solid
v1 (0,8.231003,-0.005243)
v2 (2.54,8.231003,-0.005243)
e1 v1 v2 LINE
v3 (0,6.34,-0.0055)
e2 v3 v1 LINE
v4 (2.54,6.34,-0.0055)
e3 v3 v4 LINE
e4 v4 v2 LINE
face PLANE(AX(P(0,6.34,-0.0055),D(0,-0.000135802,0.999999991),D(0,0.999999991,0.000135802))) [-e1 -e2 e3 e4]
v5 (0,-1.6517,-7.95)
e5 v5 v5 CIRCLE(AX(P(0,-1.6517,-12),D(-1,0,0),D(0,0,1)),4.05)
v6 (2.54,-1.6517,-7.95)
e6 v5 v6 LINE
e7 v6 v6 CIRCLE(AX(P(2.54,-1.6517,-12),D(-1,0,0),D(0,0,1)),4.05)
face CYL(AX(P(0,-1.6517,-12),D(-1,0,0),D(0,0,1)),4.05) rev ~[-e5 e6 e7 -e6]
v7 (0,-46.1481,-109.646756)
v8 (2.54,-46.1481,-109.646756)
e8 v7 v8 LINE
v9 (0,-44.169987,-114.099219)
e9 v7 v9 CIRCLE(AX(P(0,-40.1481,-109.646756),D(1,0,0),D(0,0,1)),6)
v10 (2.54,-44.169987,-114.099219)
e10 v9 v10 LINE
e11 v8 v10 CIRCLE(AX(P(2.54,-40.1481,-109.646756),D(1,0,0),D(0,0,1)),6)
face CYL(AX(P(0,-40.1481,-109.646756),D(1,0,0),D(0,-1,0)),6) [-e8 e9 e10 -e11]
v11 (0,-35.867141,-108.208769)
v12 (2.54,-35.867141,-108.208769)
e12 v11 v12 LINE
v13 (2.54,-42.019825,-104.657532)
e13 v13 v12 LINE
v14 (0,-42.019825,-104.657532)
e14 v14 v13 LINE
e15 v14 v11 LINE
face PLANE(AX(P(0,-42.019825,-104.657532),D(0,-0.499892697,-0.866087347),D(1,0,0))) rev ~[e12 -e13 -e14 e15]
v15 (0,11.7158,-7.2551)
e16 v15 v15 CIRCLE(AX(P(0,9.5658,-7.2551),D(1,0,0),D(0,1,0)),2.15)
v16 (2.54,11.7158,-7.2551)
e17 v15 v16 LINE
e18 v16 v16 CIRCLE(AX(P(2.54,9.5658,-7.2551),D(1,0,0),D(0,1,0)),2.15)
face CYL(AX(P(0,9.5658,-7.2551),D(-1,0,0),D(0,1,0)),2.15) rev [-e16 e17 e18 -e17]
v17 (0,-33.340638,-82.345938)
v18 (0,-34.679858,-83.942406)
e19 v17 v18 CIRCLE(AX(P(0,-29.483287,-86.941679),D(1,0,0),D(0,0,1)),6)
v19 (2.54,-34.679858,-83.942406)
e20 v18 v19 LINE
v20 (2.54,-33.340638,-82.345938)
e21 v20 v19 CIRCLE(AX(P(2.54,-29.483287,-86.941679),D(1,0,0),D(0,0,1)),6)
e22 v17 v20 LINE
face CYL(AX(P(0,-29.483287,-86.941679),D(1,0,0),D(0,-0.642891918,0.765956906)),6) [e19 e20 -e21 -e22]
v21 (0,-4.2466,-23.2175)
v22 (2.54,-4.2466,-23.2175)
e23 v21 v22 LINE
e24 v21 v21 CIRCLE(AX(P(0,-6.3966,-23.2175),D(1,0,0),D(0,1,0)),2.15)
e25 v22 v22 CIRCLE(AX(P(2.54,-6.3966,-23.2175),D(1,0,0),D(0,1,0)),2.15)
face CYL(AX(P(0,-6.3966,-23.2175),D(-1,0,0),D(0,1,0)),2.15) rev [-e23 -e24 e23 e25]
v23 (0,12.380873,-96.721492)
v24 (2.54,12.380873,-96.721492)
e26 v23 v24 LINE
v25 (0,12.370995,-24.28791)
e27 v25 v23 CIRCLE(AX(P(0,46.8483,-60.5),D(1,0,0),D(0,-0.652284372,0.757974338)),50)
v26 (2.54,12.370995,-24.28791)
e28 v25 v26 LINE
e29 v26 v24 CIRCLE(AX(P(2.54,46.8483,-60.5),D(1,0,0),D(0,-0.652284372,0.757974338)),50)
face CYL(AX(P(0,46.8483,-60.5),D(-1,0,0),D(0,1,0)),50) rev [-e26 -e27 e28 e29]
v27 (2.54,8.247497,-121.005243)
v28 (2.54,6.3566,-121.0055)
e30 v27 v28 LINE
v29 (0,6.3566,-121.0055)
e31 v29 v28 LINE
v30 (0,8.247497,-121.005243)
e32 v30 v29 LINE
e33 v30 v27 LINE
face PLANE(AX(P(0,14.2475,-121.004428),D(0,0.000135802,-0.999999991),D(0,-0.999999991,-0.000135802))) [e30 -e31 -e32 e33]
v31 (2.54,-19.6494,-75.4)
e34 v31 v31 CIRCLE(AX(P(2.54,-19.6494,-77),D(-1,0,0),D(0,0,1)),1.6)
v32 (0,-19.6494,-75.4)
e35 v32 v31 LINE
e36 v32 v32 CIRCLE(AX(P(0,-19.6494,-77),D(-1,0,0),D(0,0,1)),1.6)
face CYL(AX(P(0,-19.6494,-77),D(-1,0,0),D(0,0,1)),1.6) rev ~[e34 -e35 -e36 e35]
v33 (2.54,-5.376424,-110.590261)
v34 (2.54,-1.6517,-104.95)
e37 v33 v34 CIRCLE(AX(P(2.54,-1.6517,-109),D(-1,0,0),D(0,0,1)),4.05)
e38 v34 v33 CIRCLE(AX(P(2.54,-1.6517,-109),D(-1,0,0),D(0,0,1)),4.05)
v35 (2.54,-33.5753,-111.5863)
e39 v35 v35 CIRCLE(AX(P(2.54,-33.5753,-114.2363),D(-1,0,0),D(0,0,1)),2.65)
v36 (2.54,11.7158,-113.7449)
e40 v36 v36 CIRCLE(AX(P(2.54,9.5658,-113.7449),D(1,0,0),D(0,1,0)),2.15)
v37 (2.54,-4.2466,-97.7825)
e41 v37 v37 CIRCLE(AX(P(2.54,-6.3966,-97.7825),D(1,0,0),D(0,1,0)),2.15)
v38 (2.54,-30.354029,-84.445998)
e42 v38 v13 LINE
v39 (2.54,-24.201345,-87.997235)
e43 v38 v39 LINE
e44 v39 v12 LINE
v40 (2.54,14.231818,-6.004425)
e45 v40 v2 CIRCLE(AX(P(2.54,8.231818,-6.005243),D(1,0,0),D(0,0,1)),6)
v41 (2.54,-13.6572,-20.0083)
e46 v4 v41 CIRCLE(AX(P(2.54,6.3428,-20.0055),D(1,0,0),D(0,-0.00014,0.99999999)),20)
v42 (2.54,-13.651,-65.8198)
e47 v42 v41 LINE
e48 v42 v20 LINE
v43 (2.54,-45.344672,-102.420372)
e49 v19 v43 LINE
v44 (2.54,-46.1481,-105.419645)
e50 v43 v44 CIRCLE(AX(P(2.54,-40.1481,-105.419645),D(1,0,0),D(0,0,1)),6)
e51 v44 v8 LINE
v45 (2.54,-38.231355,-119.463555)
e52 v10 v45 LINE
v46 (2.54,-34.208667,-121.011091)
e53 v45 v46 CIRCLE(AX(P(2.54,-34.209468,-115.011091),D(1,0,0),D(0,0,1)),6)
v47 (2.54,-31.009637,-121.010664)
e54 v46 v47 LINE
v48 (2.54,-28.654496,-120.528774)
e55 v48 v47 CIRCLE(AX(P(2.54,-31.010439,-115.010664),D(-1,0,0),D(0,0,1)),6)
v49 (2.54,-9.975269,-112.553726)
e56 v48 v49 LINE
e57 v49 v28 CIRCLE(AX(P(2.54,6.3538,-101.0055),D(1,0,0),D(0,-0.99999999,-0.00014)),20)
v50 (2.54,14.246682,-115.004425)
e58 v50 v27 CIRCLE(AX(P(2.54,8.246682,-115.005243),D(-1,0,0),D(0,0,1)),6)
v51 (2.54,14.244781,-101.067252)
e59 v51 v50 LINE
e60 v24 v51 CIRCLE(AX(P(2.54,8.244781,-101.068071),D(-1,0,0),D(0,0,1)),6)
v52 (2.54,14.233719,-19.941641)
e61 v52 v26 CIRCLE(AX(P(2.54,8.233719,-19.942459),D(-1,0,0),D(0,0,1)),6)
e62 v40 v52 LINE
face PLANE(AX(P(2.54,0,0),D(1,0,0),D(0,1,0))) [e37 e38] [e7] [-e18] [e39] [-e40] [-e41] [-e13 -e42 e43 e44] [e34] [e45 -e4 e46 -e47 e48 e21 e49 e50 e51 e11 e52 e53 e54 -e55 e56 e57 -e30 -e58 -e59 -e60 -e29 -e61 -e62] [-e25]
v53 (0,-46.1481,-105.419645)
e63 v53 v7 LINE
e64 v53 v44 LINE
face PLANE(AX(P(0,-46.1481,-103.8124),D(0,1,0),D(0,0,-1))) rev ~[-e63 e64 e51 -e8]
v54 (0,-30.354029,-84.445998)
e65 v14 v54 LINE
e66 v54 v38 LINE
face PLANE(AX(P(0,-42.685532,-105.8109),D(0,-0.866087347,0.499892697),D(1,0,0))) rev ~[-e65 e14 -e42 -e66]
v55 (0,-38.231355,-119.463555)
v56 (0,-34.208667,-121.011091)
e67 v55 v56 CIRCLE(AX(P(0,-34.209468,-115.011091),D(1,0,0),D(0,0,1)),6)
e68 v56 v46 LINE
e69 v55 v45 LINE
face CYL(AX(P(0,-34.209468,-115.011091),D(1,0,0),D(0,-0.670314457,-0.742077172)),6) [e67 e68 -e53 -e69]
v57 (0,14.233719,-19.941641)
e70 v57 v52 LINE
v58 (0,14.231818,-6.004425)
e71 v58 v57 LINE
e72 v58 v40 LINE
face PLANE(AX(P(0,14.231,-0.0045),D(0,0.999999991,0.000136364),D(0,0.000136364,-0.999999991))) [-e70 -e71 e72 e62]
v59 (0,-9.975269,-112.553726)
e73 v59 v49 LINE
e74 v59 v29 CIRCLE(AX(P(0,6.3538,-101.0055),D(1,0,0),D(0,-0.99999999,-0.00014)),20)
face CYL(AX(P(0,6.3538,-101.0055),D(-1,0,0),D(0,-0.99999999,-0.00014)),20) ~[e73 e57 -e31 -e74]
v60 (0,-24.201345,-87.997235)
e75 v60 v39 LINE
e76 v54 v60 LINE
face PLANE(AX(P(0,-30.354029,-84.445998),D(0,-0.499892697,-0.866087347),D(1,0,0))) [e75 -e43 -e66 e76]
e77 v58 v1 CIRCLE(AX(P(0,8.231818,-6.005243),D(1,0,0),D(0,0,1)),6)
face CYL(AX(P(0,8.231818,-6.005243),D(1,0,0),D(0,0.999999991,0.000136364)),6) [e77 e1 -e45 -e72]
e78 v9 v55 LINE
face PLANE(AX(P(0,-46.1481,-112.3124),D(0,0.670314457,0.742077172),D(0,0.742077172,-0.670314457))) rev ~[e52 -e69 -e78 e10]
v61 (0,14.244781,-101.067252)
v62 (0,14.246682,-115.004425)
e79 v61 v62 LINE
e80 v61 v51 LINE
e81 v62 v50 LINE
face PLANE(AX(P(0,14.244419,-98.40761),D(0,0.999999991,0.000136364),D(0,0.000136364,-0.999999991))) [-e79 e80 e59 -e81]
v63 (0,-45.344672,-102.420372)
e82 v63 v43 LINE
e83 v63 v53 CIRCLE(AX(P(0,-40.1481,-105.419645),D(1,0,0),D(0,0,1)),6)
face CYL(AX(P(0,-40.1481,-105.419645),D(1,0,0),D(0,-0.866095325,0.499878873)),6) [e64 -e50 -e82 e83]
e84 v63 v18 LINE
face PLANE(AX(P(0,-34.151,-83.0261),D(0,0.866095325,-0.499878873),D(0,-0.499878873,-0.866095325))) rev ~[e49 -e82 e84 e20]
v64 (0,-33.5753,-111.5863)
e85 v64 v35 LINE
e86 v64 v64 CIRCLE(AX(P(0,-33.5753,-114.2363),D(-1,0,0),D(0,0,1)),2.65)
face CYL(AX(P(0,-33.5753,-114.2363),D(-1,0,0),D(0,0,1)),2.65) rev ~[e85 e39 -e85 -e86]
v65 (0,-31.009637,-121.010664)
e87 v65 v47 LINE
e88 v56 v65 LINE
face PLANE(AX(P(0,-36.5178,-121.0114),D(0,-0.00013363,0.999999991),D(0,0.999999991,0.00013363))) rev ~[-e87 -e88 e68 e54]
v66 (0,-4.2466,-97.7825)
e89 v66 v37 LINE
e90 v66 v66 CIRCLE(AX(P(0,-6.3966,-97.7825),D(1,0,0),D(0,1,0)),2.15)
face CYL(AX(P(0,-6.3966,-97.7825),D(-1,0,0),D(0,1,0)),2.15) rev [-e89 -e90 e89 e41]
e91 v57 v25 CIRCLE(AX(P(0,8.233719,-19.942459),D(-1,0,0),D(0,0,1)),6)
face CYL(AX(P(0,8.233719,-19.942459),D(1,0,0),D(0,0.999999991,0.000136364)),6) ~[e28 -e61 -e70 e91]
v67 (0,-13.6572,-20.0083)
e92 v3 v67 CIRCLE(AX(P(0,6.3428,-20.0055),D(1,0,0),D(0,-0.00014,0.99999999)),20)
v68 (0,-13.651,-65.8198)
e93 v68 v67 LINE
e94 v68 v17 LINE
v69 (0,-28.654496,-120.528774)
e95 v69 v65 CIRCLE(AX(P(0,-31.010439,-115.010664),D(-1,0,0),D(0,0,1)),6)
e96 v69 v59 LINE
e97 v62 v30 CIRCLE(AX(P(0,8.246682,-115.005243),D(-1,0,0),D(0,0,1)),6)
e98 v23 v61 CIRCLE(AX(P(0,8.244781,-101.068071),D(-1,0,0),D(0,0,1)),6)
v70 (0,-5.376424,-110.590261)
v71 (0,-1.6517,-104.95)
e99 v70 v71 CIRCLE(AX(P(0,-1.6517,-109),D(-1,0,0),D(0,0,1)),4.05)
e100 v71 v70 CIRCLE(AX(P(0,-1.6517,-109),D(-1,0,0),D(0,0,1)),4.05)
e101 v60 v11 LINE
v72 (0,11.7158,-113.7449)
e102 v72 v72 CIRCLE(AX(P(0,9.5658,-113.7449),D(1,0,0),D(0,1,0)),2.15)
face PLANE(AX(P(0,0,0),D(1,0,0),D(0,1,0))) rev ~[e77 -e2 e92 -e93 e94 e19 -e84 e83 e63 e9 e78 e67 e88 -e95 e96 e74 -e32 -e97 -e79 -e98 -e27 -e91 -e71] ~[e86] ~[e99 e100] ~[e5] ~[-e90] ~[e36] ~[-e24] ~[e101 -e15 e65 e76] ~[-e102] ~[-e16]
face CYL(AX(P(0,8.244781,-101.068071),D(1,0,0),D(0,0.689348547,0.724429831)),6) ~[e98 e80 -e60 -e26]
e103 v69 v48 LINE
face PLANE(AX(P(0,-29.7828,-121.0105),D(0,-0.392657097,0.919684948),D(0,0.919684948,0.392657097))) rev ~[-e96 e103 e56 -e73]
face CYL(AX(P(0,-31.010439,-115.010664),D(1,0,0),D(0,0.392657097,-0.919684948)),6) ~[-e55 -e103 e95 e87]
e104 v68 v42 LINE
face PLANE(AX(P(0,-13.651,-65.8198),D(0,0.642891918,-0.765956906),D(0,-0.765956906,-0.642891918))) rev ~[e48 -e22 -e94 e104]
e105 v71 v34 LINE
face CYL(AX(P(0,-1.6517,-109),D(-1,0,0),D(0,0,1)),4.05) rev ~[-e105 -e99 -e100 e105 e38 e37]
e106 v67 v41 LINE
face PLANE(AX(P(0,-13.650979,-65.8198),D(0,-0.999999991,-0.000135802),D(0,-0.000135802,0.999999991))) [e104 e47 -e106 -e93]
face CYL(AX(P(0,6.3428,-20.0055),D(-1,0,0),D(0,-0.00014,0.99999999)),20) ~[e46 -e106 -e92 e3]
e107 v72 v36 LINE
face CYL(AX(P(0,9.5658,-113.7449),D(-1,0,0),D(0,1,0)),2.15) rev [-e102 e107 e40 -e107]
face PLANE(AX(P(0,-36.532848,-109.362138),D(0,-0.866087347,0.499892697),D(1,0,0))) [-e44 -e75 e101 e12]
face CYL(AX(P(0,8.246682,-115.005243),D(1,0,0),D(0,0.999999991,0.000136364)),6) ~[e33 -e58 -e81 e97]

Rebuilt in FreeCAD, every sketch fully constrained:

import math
import FreeCAD as App
import Part
import Sketcher

V = App.Vector
Q = App.Units.Quantity


def edges_at(feature, points):
    """Names of the edges that pass closest to the given points."""
    edges = feature.Shape.Edges
    near = lambda p: min(range(len(edges)), key=lambda i: edges[i].distToShape(Part.Vertex(*p))[0])
    return sorted({f"Edge{near(p) + 1}" for p in points})


def add_polygon(sketch, points):
    """Adds a closed chain of lines whose ends are joined by coincident constraints."""
    first, n = sketch.GeometryCount, len(points)
    for a, b in zip(points, points[1:] + points[:1]):
        sketch.addGeometry(Part.LineSegment(App.Vector(*a, 0), App.Vector(*b, 0)), False)
    for i in range(n):
        sketch.addConstraint(Sketcher.Constraint("Coincident", first + i, 2, first + (i + 1) % n, 1))

doc = App.newDocument("Part")
body = doc.addObject("PartDesign::Body", "Body")

# Sketch on YZ plane
sketch1 = body.newObject("Sketcher::SketchObject", "Sketch")
sketch1.AttachmentSupport = (doc.getObject("YZ_Plane"), [""])
sketch1.MapMode = "FlatFace"
sketch1.addGeometry([
    Part.LineSegment(V(14.231, -0.004428, 0), V(6.34, -0.0055, 0)),  # 0
    Part.ArcOfCircle(Part.Circle(V(6.3428, -20.0055, 0), V(0, 0, 1), 20), math.radians(90.008021), math.radians(180.008021)),  # 1
    Part.LineSegment(V(-13.6572, -20.0083, 0), V(-13.650979, -65.8198, 0)),  # 2
    Part.LineSegment(V(-13.651, -65.8198, 0), V(-34.151, -83.0261, 0)),  # 3
    Part.LineSegment(V(-34.151, -83.0261, 0), V(-46.1481, -103.8124, 0)),  # 4
    Part.LineSegment(V(-46.1481, -103.8124, 0), V(-46.1481, -112.3124, 0)),  # 5
    Part.LineSegment(V(-46.1481, -112.3124, 0), V(-36.5178, -121.0114, 0)),  # 6
    Part.LineSegment(V(-36.5178, -121.0114, 0), V(-29.7828, -121.0105, 0)),  # 7
    Part.LineSegment(V(-29.7828, -121.0105, 0), V(-9.975269, -112.553726, 0)),  # 8
    Part.ArcOfCircle(Part.Circle(V(6.3538, -101.0055, 0), V(0, 0, 1), 20), math.radians(-144.731328), math.radians(-89.991979)),  # 9
    Part.LineSegment(V(6.3566, -121.0055, 0), V(14.2475, -121.004428, 0)),  # 10
    Part.LineSegment(V(14.2475, -121.0044, 0), V(14.244419, -98.40761, 0)),  # 11
    Part.ArcOfCircle(Part.Circle(V(46.8483, -60.5, 0), V(0, 0, 1), 50), math.radians(130.714056), math.radians(229.30157)),  # 12
    Part.LineSegment(V(14.234081, -22.601283, 0), V(14.231, -0.0045, 0)),  # 13
    Part.Circle(V(9.5658, -113.7449, 0), V(0, 0, 1), 2.15),  # 14
    Part.Circle(V(-1.6517, -12, 0), V(0, 0, 1), 2.65),  # 15
    Part.Circle(V(9.5658, -7.2551, 0), V(0, 0, 1), 2.15),  # 16
    Part.Circle(V(-6.3966, -97.7825, 0), V(0, 0, 1), 2.15),  # 17
    Part.Circle(V(-6.3966, -23.2175, 0), V(0, 0, 1), 2.15),  # 18
    Part.Circle(V(-1.6517, -109, 0), V(0, 0, 1), 2.65),  # 19
], False)
sketch1.addConstraint([
    Sketcher.Constraint("Tangent", 0, 2, 1, 1),
    Sketcher.Constraint("Tangent", 1, 2, 2, 1),
    Sketcher.Constraint("Coincident", 2, 2, 3, 1),
    Sketcher.Constraint("Coincident", 3, 2, 4, 1),
    Sketcher.Constraint("Coincident", 4, 2, 5, 1),
    Sketcher.Constraint("Coincident", 5, 2, 6, 1),
    Sketcher.Constraint("Coincident", 6, 2, 7, 1),
    Sketcher.Constraint("Coincident", 7, 2, 8, 1),
    Sketcher.Constraint("Coincident", 8, 2, 9, 1),
    Sketcher.Constraint("Tangent", 9, 2, 10, 1),
    Sketcher.Constraint("Coincident", 10, 2, 11, 1),
    Sketcher.Constraint("Coincident", 11, 2, 12, 2),
    Sketcher.Constraint("Coincident", 12, 1, 13, 1),
    Sketcher.Constraint("Coincident", 13, 2, 0, 1),
    Sketcher.Constraint("Vertical", 5),
    Sketcher.Constraint("Equal", 1, 9),
    Sketcher.Constraint("Equal", 14, 16),
    Sketcher.Constraint("Equal", 16, 17),
    Sketcher.Constraint("Equal", 17, 18),
    Sketcher.Constraint("Equal", 15, 19),
    Sketcher.Constraint("Perpendicular", 0, 2),
    Sketcher.Constraint("Perpendicular", 2, 7),
    Sketcher.Constraint("Parallel", 7, 10),
    Sketcher.Constraint("Perpendicular", 10, 11),
    Sketcher.Constraint("Parallel", 11, 13),
    Sketcher.Constraint("Vertical", 14, 3, 16, 3),
    Sketcher.Constraint("Vertical", 17, 3, 18, 3),
    Sketcher.Constraint("Vertical", 15, 3, 19, 3),
    Sketcher.Constraint("Equal", 0, 10),
    Sketcher.Constraint("Equal", 11, 13),
    Sketcher.Constraint("Radius", 12, 50.0),
    Sketcher.Constraint("DistanceY", 5, 2, 5, 1, 8.5),
    Sketcher.Constraint("DistanceY", 15, 3, -1, 1, 12.0),
    Sketcher.Constraint("Radius", 1, 20.0),
    Sketcher.Constraint("Diameter", 14, 4.3),
    Sketcher.Constraint("Diameter", 15, 5.3),
    Sketcher.Constraint("DistanceX", 3, 2, 2, 2, 20.5),
    Sketcher.Constraint("Distance", 4, 24.0),
    Sketcher.Constraint("DistanceY", 19, 3, -1, 1, 109.0),
    Sketcher.Constraint("DistanceY", 9, 3, 1, 3, 81.0),
    Sketcher.Constraint("DistanceY", 12, 3, -1, 1, 60.5),
    Sketcher.Constraint("Angle", 8, Q("23.12 deg")),
    Sketcher.Constraint("DistanceX", 15, 3, 12, 3, 48.5),
    Sketcher.Constraint("DistanceX", -1, 1, 0, 2, 6.34),
    Sketcher.Constraint("DistanceY", 4, 2, 17, 3, 6.03),
    Sketcher.Constraint("Distance", 0, 7.891),
    Sketcher.Constraint("Distance", 3, 26.764),
    Sketcher.Constraint("Distance", 7, 6.735),
    Sketcher.Constraint("DistanceY", 14, 3, -1, 1, 113.745),
    Sketcher.Constraint("DistanceY", 16, 3, -1, 1, 7.255),
    Sketcher.Constraint("DistanceX", 2, 2, -1, 1, 13.651),
    Sketcher.Constraint("DistanceY", 3, 2, -1, 1, 83.026),
    Sketcher.Constraint("DistanceX", 4, 2, -1, 1, 46.148),
    Sketcher.Constraint("DistanceX", 1, 3, 9, 3, 0.011),
    Sketcher.Constraint("DistanceX", 9, 3, 14, 3, 3.212),
    Sketcher.Constraint("DistanceX", 17, 3, 12, 3, 53.245),
    Sketcher.Constraint("DistanceY", 18, 3, 1, 3, 3.212),
    Sketcher.Constraint("DistanceY", 6, 2, 5, 2, 8.699),
    Sketcher.Constraint("DistanceX", 6, 2, 19, 3, 34.866),
    Sketcher.Constraint("DistanceX", 8, 2, 14, 3, 19.541),
])
pad1 = body.newObject("PartDesign::Pad", "Pad")
pad1.Profile = sketch1
pad1.Length = 2.54
doc.recompute()

fillet = body.newObject("PartDesign::Fillet", "Fillet")
fillet.Base = (pad1, edges_at(pad1, [
    (1.27, 14.231, -0.004),
    (1.27, 14.248, -121.004),
    (1.27, 14.245, -98.408),
    (1.27, 14.234, -22.601),
]))
fillet.Radius = 6

# Sketch on YZ plane
sketch2 = body.newObject("Sketcher::SketchObject", "Sketch001")
sketch2.AttachmentSupport = (doc.getObject("YZ_Plane"), [""])
sketch2.MapMode = "FlatFace"
sketch2.addGeometry([
    Part.Circle(V(-1.6517, -12, 0), V(0, 0, 1), 4.05),
    Part.Circle(V(-1.6517, -109, 0), V(0, 0, 1), 4.05),
], False)
sketch2.addConstraint([
    Sketcher.Constraint("Equal", 0, 1),
    Sketcher.Constraint("Vertical", 0, 3, 1, 3),
    Sketcher.Constraint("Diameter", 0, 8.1),
    Sketcher.Constraint("DistanceY", 0, 3, -1, 1, 12.0),
    Sketcher.Constraint("DistanceY", 1, 3, -1, 1, 109.0),
    Sketcher.Constraint("DistanceX", 0, 3, -1, 1, 1.6517),
])
pocket1 = body.newObject("PartDesign::Pocket", "Pocket")
pocket1.Profile = sketch2
pocket1.Type = "ThroughAll"
pocket1.Reversed = True

# Sketch on an angled plane
sketch3 = body.newObject("Sketcher::SketchObject", "Sketch002")
sketch3.Placement = App.Placement(V(0, -42.6838, -105.8119), App.Rotation(V(1, 0, 0), V(0, 0.499892697, 0.866087347), V(0, -0.866087347, 0.499892697), "ZXY"))
add_polygon(sketch3, [(6.7025, 24.6683), (0, 24.6683), (0, 1.3317), (3.4521, 1.3317), (7.9852, 19.2714)])  # lines 0-4
sketch3.addConstraint([
    Sketcher.Constraint("Horizontal", 0),
    Sketcher.Constraint("Vertical", 1),
    Sketcher.Constraint("Horizontal", 2),
    Sketcher.Constraint("PointOnObject", 0, 2, -2),
    Sketcher.Constraint("Angle", 3, Q("75.819 deg")),
    Sketcher.Constraint("Angle", 4, Q("103.3696 deg")),
    Sketcher.Constraint("DistanceX", 2, 1, 2, 2, 3.452),
    Sketcher.Constraint("DistanceX", 0, 2, 0, 1, 6.7025),
    Sketcher.Constraint("DistanceY", 1, 2, 1, 1, 23.3366),
    Sketcher.Constraint("DistanceY", -1, 1, 0, 2, 24.6683),
])
pocket2 = body.newObject("PartDesign::Pocket", "Pocket001")
pocket2.Profile = sketch3
pocket2.Length = 7.1

# Sketch on YZ plane
sketch4 = body.newObject("Sketcher::SketchObject", "Sketch003")
sketch4.AttachmentSupport = (doc.getObject("YZ_Plane"), [""])
sketch4.MapMode = "FlatFace"
sketch4.addGeometry(Part.Circle(V(-33.5753, -114.2363, 0), V(0, 0, 1), 2.65), False)
sketch4.addConstraint([
    Sketcher.Constraint("Diameter", 0, 5.3),
    Sketcher.Constraint("DistanceX", 0, 3, -1, 1, 33.5753),
    Sketcher.Constraint("DistanceY", 0, 3, -1, 1, 114.2363),
])
pocket3 = body.newObject("PartDesign::Pocket", "Pocket002")
pocket3.Profile = sketch4
pocket3.Type = "ThroughAll"
pocket3.Reversed = True

# Sketch on YZ plane
sketch5 = body.newObject("Sketcher::SketchObject", "Sketch004")
sketch5.AttachmentSupport = (doc.getObject("YZ_Plane"), [""])
sketch5.MapMode = "FlatFace"
sketch5.addGeometry(Part.Circle(V(-19.6494, -77, 0), V(0, 0, 1), 1.6), False)
sketch5.addConstraint([
    Sketcher.Constraint("Diameter", 0, 3.2),
    Sketcher.Constraint("DistanceY", 0, 3, -1, 1, 77.0),
    Sketcher.Constraint("DistanceX", 0, 3, -1, 1, 19.6494),
])
pocket4 = body.newObject("PartDesign::Pocket", "Pocket003")
pocket4.Profile = sketch5
pocket4.Type = "ThroughAll"
pocket4.Reversed = True
doc.recompute()

fillet2 = body.newObject("PartDesign::Fillet", "Fillet001")
fillet2.Base = (pocket4, edges_at(pocket4, [
    (1.27, -34.151, -83.026),
    (1.27, -46.148, -103.812),
    (1.27, -46.148, -112.312),
    (1.27, -36.518, -121.011),
    (1.27, -29.783, -121.01),
]))
fillet2.Radius = 6

doc.recompute()
